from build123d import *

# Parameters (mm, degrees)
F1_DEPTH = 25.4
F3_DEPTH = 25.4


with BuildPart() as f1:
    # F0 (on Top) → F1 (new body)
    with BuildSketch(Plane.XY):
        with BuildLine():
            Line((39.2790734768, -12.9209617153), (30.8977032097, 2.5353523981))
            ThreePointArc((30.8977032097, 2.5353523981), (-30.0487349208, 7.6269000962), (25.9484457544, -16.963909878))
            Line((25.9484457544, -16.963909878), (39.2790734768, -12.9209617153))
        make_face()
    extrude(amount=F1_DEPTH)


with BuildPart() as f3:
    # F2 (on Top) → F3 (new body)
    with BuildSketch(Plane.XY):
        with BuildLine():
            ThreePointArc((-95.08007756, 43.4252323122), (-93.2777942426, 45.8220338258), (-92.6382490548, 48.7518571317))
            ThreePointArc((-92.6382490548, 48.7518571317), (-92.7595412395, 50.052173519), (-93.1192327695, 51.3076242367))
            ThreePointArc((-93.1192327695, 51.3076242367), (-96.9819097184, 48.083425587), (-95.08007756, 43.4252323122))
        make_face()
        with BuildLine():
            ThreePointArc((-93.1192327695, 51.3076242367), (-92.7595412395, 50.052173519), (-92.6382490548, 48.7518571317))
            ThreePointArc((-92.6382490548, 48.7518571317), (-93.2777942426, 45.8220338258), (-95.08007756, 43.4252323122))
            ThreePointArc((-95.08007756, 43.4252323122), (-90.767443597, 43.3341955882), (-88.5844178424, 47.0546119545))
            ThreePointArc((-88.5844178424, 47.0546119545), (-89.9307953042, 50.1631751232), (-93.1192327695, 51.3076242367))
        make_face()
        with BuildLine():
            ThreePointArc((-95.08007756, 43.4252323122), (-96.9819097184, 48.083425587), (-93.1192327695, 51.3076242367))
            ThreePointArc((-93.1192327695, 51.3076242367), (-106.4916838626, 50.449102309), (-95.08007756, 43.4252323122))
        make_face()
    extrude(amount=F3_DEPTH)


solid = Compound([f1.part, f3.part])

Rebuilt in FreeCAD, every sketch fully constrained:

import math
import FreeCAD as App
import Part
import Sketcher
Q = App.Units.Quantity

doc = App.newDocument("Part")
body = doc.addObject("PartDesign::Body", "Body")

# Sketch on XY plane
sketch1 = body.newObject("Sketcher::SketchObject", "Sketch")
sketch1.AttachmentSupport = (doc.getObject("XY_Plane"), [""])
sketch1.MapMode = "FlatFace"
sketch1.addGeometry([
    Part.LineSegment(App.Vector(39, -13, 0), App.Vector(31, 3, 0)),
    Part.ArcOfCircle(Part.Circle(App.Vector(0, 0, 0), App.Vector(0, 0, 1), 31), math.radians(5), math.radians(327)),
    Part.LineSegment(App.Vector(26, -17, 0), App.Vector(39, -13, 0)),
], False)
sketch1.addConstraint([
    Sketcher.Constraint("Coincident", 0, 2, 1, 1),
    Sketcher.Constraint("Coincident", 1, 2, 2, 1),
    Sketcher.Constraint("Coincident", 2, 2, 0, 1),
    Sketcher.Constraint("Coincident", 1, 3, -1, 1),
    Sketcher.Constraint("Radius", 1, Q("31.00155 mm")),
    Sketcher.Constraint("Distance", 0, Q("17.58252 mm")),
    Sketcher.Constraint("Distance", 2, Q("13.930221 mm")),
    Sketcher.Constraint("DistanceY", 1, 2, -1, 1, Q("16.96391 mm")),
    Sketcher.Constraint("DistanceY", 2, 2, -1, 1, Q("12.920962 mm")),
])
pad1 = body.newObject("PartDesign::Pad", "Pad")
pad1.Profile = sketch1
pad1.Length = Q("1 in")
body2 = doc.addObject("PartDesign::Body", "Body001")

# Sketch on XY plane
sketch2 = body2.newObject("Sketcher::SketchObject", "Sketch001")
sketch2.AttachmentSupport = (doc.getObject("XY_Plane001"), [""])
sketch2.MapMode = "FlatFace"
sketch2.addGeometry([
    Part.ArcOfCircle(Part.Circle(App.Vector(-92.8, 47.1, 0), App.Vector(0, 0, 1), 4.3), math.radians(-122), math.radians(0)),
    Part.ArcOfCircle(Part.Circle(App.Vector(-92.8, 47.1, 0), App.Vector(0, 0, 1), 4.3), math.radians(0), math.radians(94)),
    Part.ArcOfCircle(Part.Circle(App.Vector(-99.7, 48.8, 0), App.Vector(0, 0, 1), 7), math.radians(21), math.radians(311)),
], False)
sketch2.addConstraint([
    Sketcher.Constraint("Tangent", 0, 2, 1, 1),
    Sketcher.Constraint("Coincident", 1, 2, 2, 1),
    Sketcher.Constraint("Coincident", 2, 2, 0, 1),
    Sketcher.Constraint("Equal", 0, 1),
    Sketcher.Constraint("Horizontal", 1, 3, 0, 2),
    Sketcher.Constraint("Radius", 0, Q("4.261768 mm")),
    Sketcher.Constraint("Radius", 2, Q("7.030686 mm")),
    Sketcher.Constraint("DistanceY", -1, 1, 0, 3, Q("47.054612 mm")),
    Sketcher.Constraint("DistanceX", 2, 3, 0, 3, Q("6.822749 mm")),
    Sketcher.Constraint("DistanceX", 2, 2, 1, 3, Q("2.233892 mm")),
    Sketcher.Constraint("DistanceX", 0, 3, -1, 1, Q("92.846186 mm")),
])
pad2 = body2.newObject("PartDesign::Pad", "Pad001")
pad2.Profile = sketch2
pad2.Length = Q("1 in")

doc.recompute()
